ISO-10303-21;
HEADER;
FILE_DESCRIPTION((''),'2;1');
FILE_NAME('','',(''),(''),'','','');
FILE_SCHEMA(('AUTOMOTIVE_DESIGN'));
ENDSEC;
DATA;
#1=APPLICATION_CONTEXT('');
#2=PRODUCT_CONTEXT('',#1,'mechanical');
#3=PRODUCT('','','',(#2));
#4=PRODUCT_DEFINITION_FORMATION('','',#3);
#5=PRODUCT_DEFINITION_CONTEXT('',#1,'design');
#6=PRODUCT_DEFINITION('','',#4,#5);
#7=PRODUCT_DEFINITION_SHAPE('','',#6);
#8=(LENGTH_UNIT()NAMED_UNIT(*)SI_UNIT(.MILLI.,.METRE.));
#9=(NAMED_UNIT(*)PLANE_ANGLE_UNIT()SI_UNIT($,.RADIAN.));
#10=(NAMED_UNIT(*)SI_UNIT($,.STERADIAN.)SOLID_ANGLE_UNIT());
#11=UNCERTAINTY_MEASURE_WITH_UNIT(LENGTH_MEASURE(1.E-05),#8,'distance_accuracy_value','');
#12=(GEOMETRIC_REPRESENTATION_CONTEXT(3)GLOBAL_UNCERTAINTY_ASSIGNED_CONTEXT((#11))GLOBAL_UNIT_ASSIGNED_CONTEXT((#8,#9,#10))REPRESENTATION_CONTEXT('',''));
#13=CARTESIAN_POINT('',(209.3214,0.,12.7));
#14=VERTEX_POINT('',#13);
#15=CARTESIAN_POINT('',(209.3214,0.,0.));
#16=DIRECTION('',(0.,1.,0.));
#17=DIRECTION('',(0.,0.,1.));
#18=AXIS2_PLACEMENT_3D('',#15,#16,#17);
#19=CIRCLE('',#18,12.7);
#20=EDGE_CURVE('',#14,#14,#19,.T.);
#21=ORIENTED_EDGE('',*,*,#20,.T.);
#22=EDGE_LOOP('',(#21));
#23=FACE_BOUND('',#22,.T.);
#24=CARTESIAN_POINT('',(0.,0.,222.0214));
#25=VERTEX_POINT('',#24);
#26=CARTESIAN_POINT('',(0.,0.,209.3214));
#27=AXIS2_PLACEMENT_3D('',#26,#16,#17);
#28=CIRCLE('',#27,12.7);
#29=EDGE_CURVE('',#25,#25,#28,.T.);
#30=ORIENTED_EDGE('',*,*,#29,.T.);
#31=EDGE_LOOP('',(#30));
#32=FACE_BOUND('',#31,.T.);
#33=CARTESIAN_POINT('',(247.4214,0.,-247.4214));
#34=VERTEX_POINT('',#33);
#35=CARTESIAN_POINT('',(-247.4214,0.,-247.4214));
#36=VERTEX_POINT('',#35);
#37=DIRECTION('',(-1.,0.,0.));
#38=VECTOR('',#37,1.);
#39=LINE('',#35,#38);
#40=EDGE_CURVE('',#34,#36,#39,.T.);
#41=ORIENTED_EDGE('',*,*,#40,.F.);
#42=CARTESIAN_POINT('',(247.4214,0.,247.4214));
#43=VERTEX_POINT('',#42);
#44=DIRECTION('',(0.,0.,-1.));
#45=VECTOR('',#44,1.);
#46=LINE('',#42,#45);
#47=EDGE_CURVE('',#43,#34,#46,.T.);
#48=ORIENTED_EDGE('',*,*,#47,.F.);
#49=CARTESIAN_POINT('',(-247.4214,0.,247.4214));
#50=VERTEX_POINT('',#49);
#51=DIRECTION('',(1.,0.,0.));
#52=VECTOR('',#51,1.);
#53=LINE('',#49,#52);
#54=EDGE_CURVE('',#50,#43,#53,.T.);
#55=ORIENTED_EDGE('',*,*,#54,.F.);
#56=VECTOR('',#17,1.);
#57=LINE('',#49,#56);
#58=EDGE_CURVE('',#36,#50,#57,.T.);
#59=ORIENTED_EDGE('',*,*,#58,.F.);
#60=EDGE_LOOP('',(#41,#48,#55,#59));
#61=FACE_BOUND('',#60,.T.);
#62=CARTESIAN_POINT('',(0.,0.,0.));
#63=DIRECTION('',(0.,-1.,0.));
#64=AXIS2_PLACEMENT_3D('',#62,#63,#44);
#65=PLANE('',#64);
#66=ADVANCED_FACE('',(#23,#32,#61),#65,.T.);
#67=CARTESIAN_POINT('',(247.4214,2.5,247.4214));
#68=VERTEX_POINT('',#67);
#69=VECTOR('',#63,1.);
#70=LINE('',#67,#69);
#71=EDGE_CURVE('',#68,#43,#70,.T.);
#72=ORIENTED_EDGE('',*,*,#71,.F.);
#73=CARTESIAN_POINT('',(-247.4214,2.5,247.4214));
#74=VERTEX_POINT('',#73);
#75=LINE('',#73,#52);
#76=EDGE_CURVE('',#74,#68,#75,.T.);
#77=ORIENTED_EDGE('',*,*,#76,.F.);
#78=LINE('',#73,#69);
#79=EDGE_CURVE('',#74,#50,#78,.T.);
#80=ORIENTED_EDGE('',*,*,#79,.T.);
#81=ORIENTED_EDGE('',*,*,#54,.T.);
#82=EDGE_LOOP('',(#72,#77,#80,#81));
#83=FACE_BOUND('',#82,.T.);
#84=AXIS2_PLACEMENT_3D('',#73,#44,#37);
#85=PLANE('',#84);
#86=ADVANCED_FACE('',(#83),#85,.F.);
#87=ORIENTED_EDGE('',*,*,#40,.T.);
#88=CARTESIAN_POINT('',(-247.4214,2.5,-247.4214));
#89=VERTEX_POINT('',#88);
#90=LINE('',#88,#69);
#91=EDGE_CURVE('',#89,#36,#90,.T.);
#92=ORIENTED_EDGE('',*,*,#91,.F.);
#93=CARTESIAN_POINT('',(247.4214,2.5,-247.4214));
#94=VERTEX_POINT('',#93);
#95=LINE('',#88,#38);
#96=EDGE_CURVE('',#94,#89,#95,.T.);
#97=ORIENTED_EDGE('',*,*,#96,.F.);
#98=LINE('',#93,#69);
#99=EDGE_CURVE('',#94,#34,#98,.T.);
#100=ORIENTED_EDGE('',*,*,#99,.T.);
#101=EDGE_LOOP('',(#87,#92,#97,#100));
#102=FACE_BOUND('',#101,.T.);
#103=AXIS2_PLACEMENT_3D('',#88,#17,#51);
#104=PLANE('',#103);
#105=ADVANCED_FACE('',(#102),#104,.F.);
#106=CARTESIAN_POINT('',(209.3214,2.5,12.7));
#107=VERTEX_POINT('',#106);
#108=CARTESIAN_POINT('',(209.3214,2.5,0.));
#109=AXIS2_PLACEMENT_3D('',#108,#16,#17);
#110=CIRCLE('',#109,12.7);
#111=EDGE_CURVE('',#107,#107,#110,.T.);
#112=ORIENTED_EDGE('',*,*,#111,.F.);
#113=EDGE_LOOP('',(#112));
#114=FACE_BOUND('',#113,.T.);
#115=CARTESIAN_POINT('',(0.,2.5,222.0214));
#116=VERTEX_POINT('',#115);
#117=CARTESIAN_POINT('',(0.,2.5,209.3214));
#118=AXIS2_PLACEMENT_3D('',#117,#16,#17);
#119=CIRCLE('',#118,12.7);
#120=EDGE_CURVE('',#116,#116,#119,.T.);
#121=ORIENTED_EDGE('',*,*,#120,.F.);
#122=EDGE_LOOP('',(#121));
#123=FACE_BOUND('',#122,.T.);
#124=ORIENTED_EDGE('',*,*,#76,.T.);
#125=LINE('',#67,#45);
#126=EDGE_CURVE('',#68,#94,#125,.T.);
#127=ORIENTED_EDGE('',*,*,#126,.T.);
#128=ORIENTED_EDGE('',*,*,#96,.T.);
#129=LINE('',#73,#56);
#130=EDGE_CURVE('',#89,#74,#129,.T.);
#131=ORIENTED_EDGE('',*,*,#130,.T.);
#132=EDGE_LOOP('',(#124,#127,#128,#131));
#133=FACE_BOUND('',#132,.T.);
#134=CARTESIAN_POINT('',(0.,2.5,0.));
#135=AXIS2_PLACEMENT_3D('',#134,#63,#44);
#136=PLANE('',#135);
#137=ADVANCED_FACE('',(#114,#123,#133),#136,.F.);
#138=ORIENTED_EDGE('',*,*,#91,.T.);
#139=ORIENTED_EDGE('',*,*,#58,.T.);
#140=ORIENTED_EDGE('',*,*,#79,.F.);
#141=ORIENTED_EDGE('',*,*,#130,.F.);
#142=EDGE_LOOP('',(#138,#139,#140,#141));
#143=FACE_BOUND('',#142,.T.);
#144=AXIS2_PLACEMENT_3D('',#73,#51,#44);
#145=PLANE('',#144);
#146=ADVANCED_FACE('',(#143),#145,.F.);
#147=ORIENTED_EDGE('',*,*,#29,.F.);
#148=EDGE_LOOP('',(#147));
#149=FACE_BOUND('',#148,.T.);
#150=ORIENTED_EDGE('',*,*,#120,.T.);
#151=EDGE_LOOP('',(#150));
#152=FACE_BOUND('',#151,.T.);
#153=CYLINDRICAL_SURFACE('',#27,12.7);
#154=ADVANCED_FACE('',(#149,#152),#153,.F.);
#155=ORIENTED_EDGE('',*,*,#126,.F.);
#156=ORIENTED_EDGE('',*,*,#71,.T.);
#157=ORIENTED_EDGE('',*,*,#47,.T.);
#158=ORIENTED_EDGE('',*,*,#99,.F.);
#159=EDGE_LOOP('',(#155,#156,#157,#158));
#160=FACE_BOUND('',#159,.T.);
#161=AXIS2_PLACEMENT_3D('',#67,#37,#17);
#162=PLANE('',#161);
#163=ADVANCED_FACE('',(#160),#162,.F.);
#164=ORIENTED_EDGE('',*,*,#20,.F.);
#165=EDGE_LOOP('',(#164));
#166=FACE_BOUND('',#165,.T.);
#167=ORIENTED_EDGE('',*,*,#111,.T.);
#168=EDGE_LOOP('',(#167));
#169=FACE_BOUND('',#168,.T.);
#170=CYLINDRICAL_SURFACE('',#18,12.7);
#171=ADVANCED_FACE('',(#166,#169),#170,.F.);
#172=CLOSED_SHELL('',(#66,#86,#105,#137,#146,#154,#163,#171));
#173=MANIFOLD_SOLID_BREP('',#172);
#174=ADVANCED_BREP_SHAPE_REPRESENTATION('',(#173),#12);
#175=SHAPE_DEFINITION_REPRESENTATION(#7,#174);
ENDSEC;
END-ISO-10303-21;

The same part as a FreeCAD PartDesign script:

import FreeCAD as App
import Part
import Sketcher

V = App.Vector


def add_polygon(sketch, points):
    """Adds a closed chain of lines whose ends are joined by coincident constraints."""
    first, n = sketch.GeometryCount, len(points)
    for a, b in zip(points, points[1:] + points[:1]):
        sketch.addGeometry(Part.LineSegment(App.Vector(*a, 0), App.Vector(*b, 0)), False)
    for i in range(n):
        sketch.addConstraint(Sketcher.Constraint("Coincident", first + i, 2, first + (i + 1) % n, 1))

doc = App.newDocument("Part")
body = doc.addObject("PartDesign::Body", "Body")

sketch1 = doc.addObject("Sketcher::SketchObject", "Sketch")
body.addObject(sketch1)
sketch1.AttachmentSupport = (doc.XZ_Plane, [""])
sketch1.MapMode = "FlatFace"
add_polygon(sketch1, [(-247, -247), (-247, 247), (247, 247), (247, -247)])
sketch1.addConstraint([
    Sketcher.Constraint("Vertical", 0),
    Sketcher.Constraint("Horizontal", 1),
    Sketcher.Constraint("Vertical", 2),
    Sketcher.Constraint("Horizontal", 3),
    Sketcher.Constraint("Symmetric", 0, 2, 2, 2, -1, 1),
    Sketcher.Constraint("Equal", 3, 0),
    Sketcher.Constraint("DistanceX", 1, 1, 1, 2, 494.8428),
])
pad1 = doc.addObject("PartDesign::Pad", "Pad")
body.addObject(pad1)
pad1.Profile = sketch1
pad1.Length = 2.5
pad1.Reversed = True

sketch2 = doc.addObject("Sketcher::SketchObject", "Sketch001")
body.addObject(sketch2)
sketch2.AttachmentSupport = (doc.XZ_Plane, [""])
sketch2.MapMode = "FlatFace"
sketch2.AttachmentOffset = App.Placement(V(0, 0, -2.5), App.Rotation())
sketch2.addGeometry([
    Part.Circle(V(209, 0, 0), V(0, 0, 1), 13),
    Part.Circle(V(0, 209, 0), V(0, 0, 1), 13),
], False)
sketch2.addConstraint([
    Sketcher.Constraint("Equal", 0, 1),
    Sketcher.Constraint("PointOnObject", 0, 3, -1),
    Sketcher.Constraint("PointOnObject", 1, 3, -2),
    Sketcher.Constraint("Diameter", 0, 25.4),
    Sketcher.Constraint("DistanceX", -1, 1, 0, 3, 209.3214),
    Sketcher.Constraint("DistanceY", -1, 1, 1, 3, 209.3214),
])
pocket1 = doc.addObject("PartDesign::Pocket", "Pocket")
body.addObject(pocket1)
pocket1.Profile = sketch2
pocket1.Type = "ThroughAll"
pocket1.Reversed = True

doc.recompute()
